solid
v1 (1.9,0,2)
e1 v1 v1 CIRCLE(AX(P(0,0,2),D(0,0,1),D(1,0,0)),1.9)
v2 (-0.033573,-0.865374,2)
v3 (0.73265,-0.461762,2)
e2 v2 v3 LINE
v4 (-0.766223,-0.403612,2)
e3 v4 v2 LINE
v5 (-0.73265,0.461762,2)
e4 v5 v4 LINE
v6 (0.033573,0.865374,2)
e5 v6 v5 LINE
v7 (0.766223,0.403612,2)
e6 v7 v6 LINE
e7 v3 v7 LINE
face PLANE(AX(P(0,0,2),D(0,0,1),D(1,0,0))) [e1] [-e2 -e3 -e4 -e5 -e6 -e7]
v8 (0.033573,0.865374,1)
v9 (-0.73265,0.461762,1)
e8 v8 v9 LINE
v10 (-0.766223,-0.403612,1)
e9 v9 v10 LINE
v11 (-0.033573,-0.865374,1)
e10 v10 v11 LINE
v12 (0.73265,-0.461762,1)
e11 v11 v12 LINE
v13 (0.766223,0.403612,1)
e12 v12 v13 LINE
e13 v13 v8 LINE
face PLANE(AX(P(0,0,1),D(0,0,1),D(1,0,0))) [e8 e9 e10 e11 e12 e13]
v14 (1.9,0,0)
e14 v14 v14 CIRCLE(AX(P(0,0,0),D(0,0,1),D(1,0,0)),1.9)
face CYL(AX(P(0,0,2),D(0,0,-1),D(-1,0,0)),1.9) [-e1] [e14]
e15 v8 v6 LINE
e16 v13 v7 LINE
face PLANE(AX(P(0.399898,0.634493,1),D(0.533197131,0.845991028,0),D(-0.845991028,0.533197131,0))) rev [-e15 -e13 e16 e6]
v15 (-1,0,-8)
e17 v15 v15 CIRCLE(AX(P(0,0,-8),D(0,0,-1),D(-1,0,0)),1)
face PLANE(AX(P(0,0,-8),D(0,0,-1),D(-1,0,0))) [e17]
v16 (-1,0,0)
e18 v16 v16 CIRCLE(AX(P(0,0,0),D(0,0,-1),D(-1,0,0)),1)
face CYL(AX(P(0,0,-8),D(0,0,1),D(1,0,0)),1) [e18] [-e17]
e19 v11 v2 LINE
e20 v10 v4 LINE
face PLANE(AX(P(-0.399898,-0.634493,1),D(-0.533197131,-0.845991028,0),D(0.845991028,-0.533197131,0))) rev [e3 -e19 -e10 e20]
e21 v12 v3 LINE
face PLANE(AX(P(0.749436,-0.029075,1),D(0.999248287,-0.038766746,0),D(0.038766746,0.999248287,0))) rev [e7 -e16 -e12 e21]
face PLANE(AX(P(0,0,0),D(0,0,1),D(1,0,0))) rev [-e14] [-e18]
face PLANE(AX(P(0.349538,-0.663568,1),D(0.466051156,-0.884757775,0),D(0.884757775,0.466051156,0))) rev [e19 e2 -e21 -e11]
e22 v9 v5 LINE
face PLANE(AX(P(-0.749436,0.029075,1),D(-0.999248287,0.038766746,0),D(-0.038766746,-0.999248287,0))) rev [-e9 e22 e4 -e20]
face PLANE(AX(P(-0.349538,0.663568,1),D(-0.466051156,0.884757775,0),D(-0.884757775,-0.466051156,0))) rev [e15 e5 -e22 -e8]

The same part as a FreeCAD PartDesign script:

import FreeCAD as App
import Part
import Sketcher


def add_polygon(sketch, points):
    """Adds a closed chain of lines whose ends are joined by coincident constraints."""
    first, n = sketch.GeometryCount, len(points)
    for a, b in zip(points, points[1:] + points[:1]):
        sketch.addGeometry(Part.LineSegment(App.Vector(*a, 0), App.Vector(*b, 0)), False)
    for i in range(n):
        sketch.addConstraint(Sketcher.Constraint("Coincident", first + i, 2, first + (i + 1) % n, 1))

doc = App.newDocument("Part")
body = doc.addObject("PartDesign::Body", "Body")

# Sketch on XY plane
sketch1 = body.newObject("Sketcher::SketchObject", "Sketch")
sketch1.AttachmentSupport = (doc.getObject("XY_Plane"), [""])
sketch1.MapMode = "FlatFace"
sketch1.addGeometry(Part.Circle(App.Vector(0, 0, 0), App.Vector(0, 0, 1), 1.9), False)
sketch1.addConstraint([
    Sketcher.Constraint("Coincident", 0, 3, -1, 1),
    Sketcher.Constraint("Diameter", 0, 3.8),
])
pad1 = body.newObject("PartDesign::Pad", "Pad")
pad1.Profile = sketch1
pad1.Length = 2

# Sketch on XY plane
sketch2 = body.newObject("Sketcher::SketchObject", "Sketch001")
sketch2.AttachmentSupport = (doc.getObject("XY_Plane"), [""])
sketch2.MapMode = "FlatFace"
sketch2.addGeometry(Part.Circle(App.Vector(0, 0, 0), App.Vector(0, 0, 1), 1), False)
sketch2.addConstraint([
    Sketcher.Constraint("Coincident", 0, 3, -1, 1),
    Sketcher.Constraint("Diameter", 0, 2.0),
])
pad2 = body.newObject("PartDesign::Pad", "Pad001")
pad2.Profile = sketch2
pad2.Length = 8
pad2.Reversed = True

# Sketch on XY plane
sketch3 = body.newObject("Sketcher::SketchObject", "Sketch002")
sketch3.AttachmentSupport = (doc.getObject("XY_Plane"), [""])
sketch3.MapMode = "FlatFace"
sketch3.AttachmentOffset = App.Placement(App.Vector(0, 0, 2), App.Rotation())
add_polygon(sketch3, [(-0.8, -0.4), (0, -0.9), (0.7, -0.5), (0.8, 0.4), (0, 0.9), (-0.7, 0.5)])  # lines 0-5
sketch3.addConstraint([
    Sketcher.Constraint("Symmetric", 0, 2, 3, 2, -1, 1),
    Sketcher.Constraint("Symmetric", 1, 2, 4, 2, -1, 1),
    Sketcher.Constraint("Symmetric", 2, 2, 5, 2, -1, 1),
    Sketcher.Constraint("Equal", 0, 1),
    Sketcher.Constraint("Equal", 1, 2),
    Sketcher.Constraint("DistanceX", 4, 2, 1, 2, 1.465299),
    Sketcher.Constraint("DistanceX", 3, 2, 2, 2, 0.73265),
    Sketcher.Constraint("DistanceY", 0, 2, 3, 2, 1.730749),
    Sketcher.Constraint("DistanceY", 2, 2, 4, 2, 0.05815),
])
pocket1 = body.newObject("PartDesign::Pocket", "Pocket")
pocket1.Profile = sketch3
pocket1.Length = 1

doc.recompute()
